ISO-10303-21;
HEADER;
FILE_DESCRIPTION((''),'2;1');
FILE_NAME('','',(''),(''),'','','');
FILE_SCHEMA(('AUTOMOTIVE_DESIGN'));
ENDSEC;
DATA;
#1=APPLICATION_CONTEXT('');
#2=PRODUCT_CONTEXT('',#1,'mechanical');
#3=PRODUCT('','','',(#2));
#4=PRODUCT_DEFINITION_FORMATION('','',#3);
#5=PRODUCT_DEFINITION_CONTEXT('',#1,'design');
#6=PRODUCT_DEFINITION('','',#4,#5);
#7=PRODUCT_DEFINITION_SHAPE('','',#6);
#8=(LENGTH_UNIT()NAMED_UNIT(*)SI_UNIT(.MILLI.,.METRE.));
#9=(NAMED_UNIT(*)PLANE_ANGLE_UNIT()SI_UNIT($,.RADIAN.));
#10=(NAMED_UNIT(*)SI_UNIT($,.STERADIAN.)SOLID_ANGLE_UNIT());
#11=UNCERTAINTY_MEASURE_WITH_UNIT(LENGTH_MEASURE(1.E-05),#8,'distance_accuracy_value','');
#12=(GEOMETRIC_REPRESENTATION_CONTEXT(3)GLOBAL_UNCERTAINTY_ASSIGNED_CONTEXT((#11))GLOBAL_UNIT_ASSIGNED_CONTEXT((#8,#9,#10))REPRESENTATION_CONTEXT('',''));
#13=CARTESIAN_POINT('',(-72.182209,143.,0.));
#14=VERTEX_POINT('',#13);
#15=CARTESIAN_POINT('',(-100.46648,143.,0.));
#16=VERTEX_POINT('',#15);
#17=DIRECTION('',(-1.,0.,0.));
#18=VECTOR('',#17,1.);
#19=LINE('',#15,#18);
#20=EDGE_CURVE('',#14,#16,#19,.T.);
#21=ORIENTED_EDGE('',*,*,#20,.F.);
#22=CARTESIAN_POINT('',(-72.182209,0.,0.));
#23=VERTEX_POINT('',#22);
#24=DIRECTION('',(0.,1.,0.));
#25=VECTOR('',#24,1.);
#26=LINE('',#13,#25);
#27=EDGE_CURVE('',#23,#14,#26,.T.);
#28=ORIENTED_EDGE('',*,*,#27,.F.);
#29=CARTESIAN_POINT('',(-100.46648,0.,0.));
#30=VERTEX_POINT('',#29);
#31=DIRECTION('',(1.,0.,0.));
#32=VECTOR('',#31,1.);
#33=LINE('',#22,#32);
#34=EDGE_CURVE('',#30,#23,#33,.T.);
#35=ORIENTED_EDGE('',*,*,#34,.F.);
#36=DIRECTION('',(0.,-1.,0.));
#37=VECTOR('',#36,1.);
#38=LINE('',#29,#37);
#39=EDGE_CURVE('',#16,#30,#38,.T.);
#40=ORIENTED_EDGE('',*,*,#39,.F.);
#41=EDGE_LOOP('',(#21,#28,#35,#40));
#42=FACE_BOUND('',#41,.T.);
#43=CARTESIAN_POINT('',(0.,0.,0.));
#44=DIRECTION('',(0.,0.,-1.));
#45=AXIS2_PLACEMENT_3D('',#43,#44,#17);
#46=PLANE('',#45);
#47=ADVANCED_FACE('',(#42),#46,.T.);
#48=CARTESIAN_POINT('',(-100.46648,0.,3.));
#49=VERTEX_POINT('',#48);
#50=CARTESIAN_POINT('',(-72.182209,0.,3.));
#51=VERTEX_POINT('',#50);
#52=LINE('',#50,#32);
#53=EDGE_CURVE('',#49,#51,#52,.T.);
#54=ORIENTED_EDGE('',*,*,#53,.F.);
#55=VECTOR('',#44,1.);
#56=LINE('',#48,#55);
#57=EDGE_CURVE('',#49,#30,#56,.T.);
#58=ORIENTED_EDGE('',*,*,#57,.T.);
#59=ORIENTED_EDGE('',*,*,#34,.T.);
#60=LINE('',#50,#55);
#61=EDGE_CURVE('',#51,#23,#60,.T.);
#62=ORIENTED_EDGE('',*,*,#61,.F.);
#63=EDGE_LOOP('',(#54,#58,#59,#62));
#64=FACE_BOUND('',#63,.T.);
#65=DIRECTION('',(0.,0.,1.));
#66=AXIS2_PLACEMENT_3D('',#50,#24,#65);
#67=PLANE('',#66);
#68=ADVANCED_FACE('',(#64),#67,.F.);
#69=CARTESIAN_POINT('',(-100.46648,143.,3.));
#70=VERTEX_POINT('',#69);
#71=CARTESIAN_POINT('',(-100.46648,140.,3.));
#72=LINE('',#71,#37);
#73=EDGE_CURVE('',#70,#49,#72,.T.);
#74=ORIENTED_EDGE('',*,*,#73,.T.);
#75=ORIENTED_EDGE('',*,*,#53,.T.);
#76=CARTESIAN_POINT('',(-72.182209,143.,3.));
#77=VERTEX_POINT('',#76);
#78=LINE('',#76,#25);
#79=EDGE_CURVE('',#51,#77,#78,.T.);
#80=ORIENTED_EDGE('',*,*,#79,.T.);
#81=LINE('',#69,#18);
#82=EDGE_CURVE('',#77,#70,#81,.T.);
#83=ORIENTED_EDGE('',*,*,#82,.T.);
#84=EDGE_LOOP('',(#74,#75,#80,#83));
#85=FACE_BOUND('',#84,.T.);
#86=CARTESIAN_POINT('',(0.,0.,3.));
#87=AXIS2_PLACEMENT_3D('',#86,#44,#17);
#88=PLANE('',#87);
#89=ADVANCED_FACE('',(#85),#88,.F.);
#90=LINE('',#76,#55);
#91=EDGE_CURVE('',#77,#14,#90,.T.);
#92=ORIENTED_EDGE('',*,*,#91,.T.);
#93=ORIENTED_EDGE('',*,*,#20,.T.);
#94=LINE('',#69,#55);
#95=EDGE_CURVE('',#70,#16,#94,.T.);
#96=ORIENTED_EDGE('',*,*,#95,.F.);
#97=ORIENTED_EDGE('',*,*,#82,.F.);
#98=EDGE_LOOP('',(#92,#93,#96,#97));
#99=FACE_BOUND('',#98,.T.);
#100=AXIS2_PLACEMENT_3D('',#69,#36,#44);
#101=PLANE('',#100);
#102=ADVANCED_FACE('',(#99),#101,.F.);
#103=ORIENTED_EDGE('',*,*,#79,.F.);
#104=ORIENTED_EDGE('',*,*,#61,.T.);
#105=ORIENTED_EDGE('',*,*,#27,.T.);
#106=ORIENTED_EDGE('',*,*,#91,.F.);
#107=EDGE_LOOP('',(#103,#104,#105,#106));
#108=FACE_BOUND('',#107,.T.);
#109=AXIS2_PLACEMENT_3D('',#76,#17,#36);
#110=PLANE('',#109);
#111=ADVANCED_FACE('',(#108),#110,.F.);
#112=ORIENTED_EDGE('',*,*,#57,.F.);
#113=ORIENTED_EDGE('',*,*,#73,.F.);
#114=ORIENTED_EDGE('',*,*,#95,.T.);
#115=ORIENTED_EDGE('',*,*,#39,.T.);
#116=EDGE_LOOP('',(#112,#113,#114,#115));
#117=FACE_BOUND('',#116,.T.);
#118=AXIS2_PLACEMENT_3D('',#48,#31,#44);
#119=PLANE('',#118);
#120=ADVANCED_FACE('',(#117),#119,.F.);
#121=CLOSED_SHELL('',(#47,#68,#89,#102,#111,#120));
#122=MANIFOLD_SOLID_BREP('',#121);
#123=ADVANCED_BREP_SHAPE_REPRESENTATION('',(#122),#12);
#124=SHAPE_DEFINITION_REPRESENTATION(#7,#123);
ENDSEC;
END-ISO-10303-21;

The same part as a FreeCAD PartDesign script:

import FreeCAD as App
import Part
import Sketcher
from FreeCAD import Vector


def add_polygon(sketch, points):
    """Adds a closed chain of lines whose ends are joined by coincident constraints."""
    first, n = sketch.GeometryCount, len(points)
    for a, b in zip(points, points[1:] + points[:1]):
        sketch.addGeometry(Part.LineSegment(App.Vector(*a, 0), App.Vector(*b, 0)), False)
    for i in range(n):
        sketch.addConstraint(Sketcher.Constraint("Coincident", first + i, 2, first + (i + 1) % n, 1))

doc = App.newDocument("Part")
params = doc.addObject("Spreadsheet::Sheet", "Params")
for row, (alias, value) in enumerate([
    ("sketch1_height", "143 mm"),
    ("pad1_length", "3 mm"),
], start=1):
    params.set(f"A{row}", alias)
    params.set(f"B{row}", "=" + value)
    params.setAlias(f"B{row}", alias)

body = doc.addObject("PartDesign::Body", "Body")

# Sketch on XY plane
sketch1 = doc.addObject("Sketcher::SketchObject", "Sketch")
body.addObject(sketch1)
sketch1.AttachmentSupport = (doc.XY_Plane, [""])
sketch1.MapMode = "FlatFace"
add_polygon(sketch1, [(-100, 143), (-100, 0), (-72, 0), (-72, 143)])  # lines 0-3
sketch1.addConstraint([
    Sketcher.Constraint("Vertical", 0),
    Sketcher.Constraint("Horizontal", 1),
    Sketcher.Constraint("Vertical", 2),
    Sketcher.Constraint("Horizontal", 3),
    Sketcher.Constraint("PointOnObject", 0, 2, -1),
    Sketcher.Constraint("DistanceY", 0, 2, 0, 1, 143.0),
    Sketcher.Constraint("DistanceX", 1, 1, 1, 2, 28.284271),
    Sketcher.Constraint("DistanceX", 0, 2, -1, 1, 100.46648),
])
sketch1.setExpression("Constraints[9]", "Params.sketch1_height")
pad1 = doc.addObject("PartDesign::Pad", "Pad")
body.addObject(pad1)
pad1.Profile = sketch1
pad1.setExpression("Length", "Params.pad1_length")

doc.recompute()
